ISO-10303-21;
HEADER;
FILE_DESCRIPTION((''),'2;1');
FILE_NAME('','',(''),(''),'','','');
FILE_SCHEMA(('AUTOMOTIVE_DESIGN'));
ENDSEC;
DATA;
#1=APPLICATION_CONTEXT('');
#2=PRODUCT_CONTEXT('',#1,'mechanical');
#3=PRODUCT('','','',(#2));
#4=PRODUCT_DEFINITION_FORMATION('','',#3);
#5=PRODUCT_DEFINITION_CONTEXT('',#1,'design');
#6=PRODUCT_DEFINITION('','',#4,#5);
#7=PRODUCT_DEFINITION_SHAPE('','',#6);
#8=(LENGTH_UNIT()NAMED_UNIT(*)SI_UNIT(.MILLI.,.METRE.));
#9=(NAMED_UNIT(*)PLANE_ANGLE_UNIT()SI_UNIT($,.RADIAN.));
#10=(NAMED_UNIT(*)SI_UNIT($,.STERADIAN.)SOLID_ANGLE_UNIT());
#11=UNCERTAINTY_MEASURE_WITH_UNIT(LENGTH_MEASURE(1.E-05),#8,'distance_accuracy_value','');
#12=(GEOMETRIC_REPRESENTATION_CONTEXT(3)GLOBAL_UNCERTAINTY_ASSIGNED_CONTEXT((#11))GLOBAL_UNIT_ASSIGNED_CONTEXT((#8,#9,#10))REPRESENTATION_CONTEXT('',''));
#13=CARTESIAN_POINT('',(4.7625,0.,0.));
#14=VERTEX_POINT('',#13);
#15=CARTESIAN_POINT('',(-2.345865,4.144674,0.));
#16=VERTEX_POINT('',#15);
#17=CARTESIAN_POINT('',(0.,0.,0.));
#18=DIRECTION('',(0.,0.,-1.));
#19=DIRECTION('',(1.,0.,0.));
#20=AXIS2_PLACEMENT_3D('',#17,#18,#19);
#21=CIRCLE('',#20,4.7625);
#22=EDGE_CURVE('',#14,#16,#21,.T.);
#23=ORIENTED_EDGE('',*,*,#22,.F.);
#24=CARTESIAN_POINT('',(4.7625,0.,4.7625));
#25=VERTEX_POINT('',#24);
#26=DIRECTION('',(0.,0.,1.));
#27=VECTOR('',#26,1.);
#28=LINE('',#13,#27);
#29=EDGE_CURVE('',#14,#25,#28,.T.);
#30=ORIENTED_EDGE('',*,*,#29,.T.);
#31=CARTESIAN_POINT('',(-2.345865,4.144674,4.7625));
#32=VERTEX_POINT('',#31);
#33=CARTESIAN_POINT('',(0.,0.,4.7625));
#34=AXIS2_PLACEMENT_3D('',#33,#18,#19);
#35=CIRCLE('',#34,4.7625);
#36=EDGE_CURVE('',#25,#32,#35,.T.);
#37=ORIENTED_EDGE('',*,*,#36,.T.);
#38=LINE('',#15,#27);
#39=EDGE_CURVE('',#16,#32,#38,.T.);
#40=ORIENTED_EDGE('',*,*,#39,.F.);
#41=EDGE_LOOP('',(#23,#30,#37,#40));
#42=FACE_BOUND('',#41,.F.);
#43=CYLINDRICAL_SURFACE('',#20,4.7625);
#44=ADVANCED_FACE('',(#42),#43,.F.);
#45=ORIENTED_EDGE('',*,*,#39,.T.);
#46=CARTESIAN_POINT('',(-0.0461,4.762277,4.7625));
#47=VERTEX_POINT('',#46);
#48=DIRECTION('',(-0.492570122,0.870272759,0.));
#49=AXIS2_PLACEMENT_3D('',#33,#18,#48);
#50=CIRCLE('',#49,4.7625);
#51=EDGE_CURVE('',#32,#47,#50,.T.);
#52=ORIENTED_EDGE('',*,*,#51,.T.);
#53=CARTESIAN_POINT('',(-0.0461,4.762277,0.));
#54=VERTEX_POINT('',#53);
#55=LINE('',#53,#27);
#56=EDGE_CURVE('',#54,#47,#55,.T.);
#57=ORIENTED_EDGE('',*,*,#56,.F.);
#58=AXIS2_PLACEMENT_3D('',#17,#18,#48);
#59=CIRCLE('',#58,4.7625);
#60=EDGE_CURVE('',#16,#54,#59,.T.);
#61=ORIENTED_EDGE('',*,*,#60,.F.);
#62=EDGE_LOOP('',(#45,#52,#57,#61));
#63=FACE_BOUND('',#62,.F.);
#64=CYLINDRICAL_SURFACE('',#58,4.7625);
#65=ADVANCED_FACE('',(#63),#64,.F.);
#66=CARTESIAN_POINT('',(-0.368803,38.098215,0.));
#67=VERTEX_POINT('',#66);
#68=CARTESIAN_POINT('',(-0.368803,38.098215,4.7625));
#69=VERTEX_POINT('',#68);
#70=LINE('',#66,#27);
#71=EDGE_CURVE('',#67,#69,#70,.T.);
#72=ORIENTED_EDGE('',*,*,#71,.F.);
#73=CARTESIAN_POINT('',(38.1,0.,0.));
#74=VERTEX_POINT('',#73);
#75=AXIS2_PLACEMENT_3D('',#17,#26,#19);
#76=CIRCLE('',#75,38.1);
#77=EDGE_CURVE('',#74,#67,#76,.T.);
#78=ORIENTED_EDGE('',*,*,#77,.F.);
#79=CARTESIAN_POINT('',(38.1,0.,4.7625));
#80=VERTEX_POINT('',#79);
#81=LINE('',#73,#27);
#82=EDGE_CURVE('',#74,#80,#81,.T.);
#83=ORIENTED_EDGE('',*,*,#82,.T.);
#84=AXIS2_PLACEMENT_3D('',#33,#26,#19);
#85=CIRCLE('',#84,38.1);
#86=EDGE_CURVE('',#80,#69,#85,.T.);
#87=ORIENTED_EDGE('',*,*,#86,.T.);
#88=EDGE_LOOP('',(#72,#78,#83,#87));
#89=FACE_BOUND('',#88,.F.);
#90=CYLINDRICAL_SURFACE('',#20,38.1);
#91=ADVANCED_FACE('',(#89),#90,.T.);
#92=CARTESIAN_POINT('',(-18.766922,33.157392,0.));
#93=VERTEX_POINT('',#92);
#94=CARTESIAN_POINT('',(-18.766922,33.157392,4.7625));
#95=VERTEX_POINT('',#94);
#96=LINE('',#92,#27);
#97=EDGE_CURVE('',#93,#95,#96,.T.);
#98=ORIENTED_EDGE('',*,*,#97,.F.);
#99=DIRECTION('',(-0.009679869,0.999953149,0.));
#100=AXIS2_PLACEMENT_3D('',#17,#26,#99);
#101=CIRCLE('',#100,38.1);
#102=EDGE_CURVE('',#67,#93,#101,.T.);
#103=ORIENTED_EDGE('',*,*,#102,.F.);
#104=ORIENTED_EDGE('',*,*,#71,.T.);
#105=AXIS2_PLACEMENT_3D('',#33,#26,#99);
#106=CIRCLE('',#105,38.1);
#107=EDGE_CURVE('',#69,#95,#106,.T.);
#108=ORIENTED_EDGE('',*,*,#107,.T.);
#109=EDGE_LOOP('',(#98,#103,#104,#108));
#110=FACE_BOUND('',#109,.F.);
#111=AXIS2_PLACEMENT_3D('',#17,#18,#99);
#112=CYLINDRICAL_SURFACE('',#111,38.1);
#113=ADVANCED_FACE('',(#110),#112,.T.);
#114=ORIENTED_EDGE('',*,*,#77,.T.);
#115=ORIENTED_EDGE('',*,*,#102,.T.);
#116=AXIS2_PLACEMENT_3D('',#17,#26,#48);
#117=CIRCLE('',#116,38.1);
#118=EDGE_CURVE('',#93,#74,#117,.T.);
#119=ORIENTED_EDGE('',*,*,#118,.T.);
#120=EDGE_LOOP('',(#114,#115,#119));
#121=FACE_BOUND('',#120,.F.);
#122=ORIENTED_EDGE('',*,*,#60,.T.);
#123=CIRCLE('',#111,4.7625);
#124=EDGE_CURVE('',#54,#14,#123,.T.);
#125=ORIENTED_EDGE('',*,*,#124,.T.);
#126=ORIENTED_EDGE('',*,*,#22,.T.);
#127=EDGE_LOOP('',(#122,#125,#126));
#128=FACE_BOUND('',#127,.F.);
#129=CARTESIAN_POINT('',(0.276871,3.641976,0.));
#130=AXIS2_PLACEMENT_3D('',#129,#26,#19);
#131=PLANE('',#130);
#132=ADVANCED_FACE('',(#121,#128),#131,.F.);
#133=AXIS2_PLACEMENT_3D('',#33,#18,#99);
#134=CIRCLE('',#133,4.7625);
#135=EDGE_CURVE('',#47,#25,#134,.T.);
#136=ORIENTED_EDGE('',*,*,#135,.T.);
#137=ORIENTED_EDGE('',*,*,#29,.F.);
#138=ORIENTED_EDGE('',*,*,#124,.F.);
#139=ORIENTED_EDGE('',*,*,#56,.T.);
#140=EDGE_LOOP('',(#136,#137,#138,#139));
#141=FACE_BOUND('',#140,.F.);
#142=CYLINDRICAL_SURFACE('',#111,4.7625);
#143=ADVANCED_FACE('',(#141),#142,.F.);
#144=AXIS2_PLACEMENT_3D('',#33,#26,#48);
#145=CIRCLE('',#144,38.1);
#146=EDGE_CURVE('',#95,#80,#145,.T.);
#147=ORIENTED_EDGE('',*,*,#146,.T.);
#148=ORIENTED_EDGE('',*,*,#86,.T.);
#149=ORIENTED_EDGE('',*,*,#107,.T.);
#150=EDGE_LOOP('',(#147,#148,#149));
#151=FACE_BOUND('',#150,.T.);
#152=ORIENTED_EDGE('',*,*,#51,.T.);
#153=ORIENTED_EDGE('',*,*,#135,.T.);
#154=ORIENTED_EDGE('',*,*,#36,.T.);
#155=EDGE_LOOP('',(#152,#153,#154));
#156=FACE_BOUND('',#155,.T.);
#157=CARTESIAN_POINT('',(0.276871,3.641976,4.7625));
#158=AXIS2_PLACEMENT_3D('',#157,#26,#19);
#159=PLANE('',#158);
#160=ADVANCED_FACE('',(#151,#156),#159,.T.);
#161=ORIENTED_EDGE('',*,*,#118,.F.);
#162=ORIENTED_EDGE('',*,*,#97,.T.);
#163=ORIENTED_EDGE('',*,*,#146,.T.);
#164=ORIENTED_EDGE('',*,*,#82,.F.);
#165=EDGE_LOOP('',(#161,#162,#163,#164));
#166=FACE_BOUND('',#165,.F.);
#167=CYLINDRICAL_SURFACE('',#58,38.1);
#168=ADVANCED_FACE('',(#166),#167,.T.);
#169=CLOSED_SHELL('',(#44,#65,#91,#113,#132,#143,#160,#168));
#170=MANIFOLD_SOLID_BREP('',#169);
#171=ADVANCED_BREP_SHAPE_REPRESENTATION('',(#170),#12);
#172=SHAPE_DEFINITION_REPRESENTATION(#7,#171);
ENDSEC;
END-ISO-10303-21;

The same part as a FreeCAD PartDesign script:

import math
import FreeCAD as App
import Part
import Sketcher
from FreeCAD import Vector
Q = App.Units.Quantity

doc = App.newDocument("Part")
params = doc.addObject("Spreadsheet::Sheet", "Params")
for row, (alias, value) in enumerate([
    ("sketch1_radius", "1.5 in"),
    ("sketch1_radius2", "0.1875 in"),
    ("pad1_length", "0.1875 in"),
], start=1):
    params.set(f"A{row}", alias)
    params.set(f"B{row}", "=" + value)
    params.setAlias(f"B{row}", alias)

body = doc.addObject("PartDesign::Body", "Body")

# Sketch on XY plane
sketch1 = doc.addObject("Sketcher::SketchObject", "Sketch")
body.addObject(sketch1)
sketch1.AttachmentSupport = (doc.XY_Plane, [""])
sketch1.MapMode = "FlatFace"
sketch1.addGeometry(Part.ArcOfCircle(Part.Circle(Vector(0, 0, 0), Vector(0, 0, 1), 38.1), math.radians(119.509649), math.radians(360)), False)
sketch1.addGeometry(Part.ArcOfCircle(Part.Circle(Vector(0, 0, 0), Vector(0, 0, 1), 38.1), math.radians(0), math.radians(90.554624)), False)
sketch1.addGeometry(Part.ArcOfCircle(Part.Circle(Vector(0, 0, 0), Vector(0, 0, 1), 38.1), math.radians(90.554624), math.radians(119.509649)), False)
sketch1.addGeometry(Part.ArcOfCircle(Part.Circle(Vector(0, 0, 0), Vector(0, 0, 1), 4.7625), math.radians(0), math.radians(90.554624)), False)
sketch1.addGeometry(Part.ArcOfCircle(Part.Circle(Vector(0, 0, 0), Vector(0, 0, 1), 4.7625), math.radians(119.509649), math.radians(360)), False)
sketch1.addGeometry(Part.ArcOfCircle(Part.Circle(Vector(0, 0, 0), Vector(0, 0, 1), 4.7625), math.radians(90.554624), math.radians(119.509649)), False)
sketch1.addConstraint(Sketcher.Constraint("Tangent", 0, 2, 1, 1))
sketch1.addConstraint(Sketcher.Constraint("Tangent", 1, 2, 2, 1))
sketch1.addConstraint(Sketcher.Constraint("Tangent", 2, 2, 0, 1))
sketch1.addConstraint(Sketcher.Constraint("Tangent", 3, 1, 4, 2))
sketch1.addConstraint(Sketcher.Constraint("Tangent", 4, 1, 5, 2))
sketch1.addConstraint(Sketcher.Constraint("Tangent", 5, 1, 3, 2))
sketch1.addConstraint(Sketcher.Constraint("Coincident", 0, 3, -1, 1))
sketch1.addConstraint(Sketcher.Constraint("Coincident", 3, 3, -1, 1))
sketch1.addConstraint(Sketcher.Constraint("PointOnObject", 0, 2, -1))
sketch1.addConstraint(Sketcher.Constraint("PointOnObject", 3, 1, -1))
sketch1.addConstraint(Sketcher.Constraint("Radius", 0, Q("1.5 in")))
sketch1.addConstraint(Sketcher.Constraint("Radius", 3, Q("0.1875 in")))
sketch1.addConstraint(Sketcher.Constraint("DistanceX", 5, 1, -1, 1, 0.0461))
sketch1.addConstraint(Sketcher.Constraint("DistanceX", 2, 2, -1, 1, 18.766922))
sketch1.addConstraint(Sketcher.Constraint("DistanceX", 2, 2, 1, 2, 18.398119))
sketch1.addConstraint(Sketcher.Constraint("DistanceX", 4, 1, -1, 1, 2.345865))
sketch1.setExpression("Constraints[10]", "Params.sketch1_radius")
sketch1.setExpression("Constraints[11]", "Params.sketch1_radius2")
pad1 = doc.addObject("PartDesign::Pad", "Pad")
body.addObject(pad1)
pad1.Profile = sketch1
pad1.setExpression("Length", "Params.pad1_length")

doc.recompute()
